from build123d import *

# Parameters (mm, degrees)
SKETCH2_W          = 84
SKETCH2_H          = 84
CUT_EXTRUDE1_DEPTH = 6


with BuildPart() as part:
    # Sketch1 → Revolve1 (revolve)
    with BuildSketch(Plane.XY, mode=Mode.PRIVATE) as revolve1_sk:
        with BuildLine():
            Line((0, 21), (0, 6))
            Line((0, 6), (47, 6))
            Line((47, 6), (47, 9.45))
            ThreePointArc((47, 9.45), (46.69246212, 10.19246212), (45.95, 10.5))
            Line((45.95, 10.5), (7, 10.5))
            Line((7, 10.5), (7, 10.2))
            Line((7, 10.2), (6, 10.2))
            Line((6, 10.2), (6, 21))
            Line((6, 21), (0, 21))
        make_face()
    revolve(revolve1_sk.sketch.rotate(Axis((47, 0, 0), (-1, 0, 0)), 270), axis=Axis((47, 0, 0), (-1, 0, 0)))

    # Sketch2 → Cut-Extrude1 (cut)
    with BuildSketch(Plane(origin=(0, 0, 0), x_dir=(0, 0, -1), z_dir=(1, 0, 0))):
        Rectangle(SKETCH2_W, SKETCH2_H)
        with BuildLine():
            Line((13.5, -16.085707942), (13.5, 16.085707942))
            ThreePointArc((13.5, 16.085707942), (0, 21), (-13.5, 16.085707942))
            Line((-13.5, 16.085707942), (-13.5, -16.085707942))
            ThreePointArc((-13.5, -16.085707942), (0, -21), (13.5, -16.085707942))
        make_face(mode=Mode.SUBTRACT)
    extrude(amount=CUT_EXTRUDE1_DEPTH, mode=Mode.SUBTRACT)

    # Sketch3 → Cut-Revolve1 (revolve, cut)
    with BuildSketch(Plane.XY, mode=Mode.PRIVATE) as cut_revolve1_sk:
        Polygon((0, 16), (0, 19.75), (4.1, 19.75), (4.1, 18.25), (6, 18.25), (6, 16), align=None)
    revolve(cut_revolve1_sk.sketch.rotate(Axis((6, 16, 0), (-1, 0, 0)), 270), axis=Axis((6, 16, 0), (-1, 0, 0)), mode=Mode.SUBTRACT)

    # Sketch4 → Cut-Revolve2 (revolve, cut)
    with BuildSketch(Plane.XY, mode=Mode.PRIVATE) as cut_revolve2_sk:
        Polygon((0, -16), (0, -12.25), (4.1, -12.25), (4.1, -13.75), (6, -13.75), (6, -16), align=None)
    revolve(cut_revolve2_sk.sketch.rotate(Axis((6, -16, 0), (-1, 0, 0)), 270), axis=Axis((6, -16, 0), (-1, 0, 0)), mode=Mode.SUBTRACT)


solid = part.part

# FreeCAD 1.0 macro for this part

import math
import FreeCAD as App
import Part
import Sketcher
Q = App.Units.Quantity


def add_polygon(sketch, points):
    """Adds a closed chain of lines whose ends are joined by coincident constraints."""
    first, n = sketch.GeometryCount, len(points)
    for a, b in zip(points, points[1:] + points[:1]):
        sketch.addGeometry(Part.LineSegment(App.Vector(*a, 0), App.Vector(*b, 0)), False)
    for i in range(n):
        sketch.addConstraint(Sketcher.Constraint("Coincident", first + i, 2, first + (i + 1) % n, 1))

doc = App.newDocument("Part")
params = doc.addObject("Spreadsheet::Sheet", "Params")
for row, (alias, value) in enumerate([
    ("sketch1_width", "47 mm"),
    ("sketch1_width2", "1 mm"),
    ("sketch1_width3", "6 mm"),
    ("sketch1_height", "15 mm"),
    ("sketch1_radius", "1.05 mm"),
    ("revolution_angle", "360 deg"),
    ("sketch2_radius", "21 mm"),
    ("sketch2_width", "84 mm"),
    ("pocket1_length", "6 mm"),
    ("sketch3_width", "6 mm"),
    ("sketch3_width2", "1.9 mm"),
    ("sketch3_height", "1.5 mm"),
    ("sketch3_height2", "3.75 mm"),
    ("groove_angle", "360 deg"),
    ("sketch4_width", "6 mm"),
    ("sketch4_width2", "1.9 mm"),
    ("sketch4_height", "1.5 mm"),
    ("sketch4_height2", "3.75 mm"),
    ("groove2_angle", "360 deg"),
], start=1):
    params.set(f"A{row}", alias)
    params.set(f"B{row}", "=" + value)
    params.setAlias(f"B{row}", alias)

body = doc.addObject("PartDesign::Body", "Body")

# Sketch on XY plane
sketch1 = doc.addObject("Sketcher::SketchObject", "Sketch")
body.addObject(sketch1)
sketch1.AttachmentSupport = (doc.XY_Plane, [""])
sketch1.MapMode = "FlatFace"
sketch1.addGeometry([
    Part.LineSegment(App.Vector(0, 21, 0), App.Vector(0, 6, 0)),  # 0
    Part.LineSegment(App.Vector(0, 6, 0), App.Vector(47, 6, 0)),  # 1
    Part.LineSegment(App.Vector(47, 6, 0), App.Vector(47, 9.45, 0)),  # 2
    Part.ArcOfCircle(Part.Circle(App.Vector(45.95, 9.45, 0), App.Vector(0, 0, 1), 1.05), math.radians(0), math.radians(90)),  # 3
    Part.LineSegment(App.Vector(45.95, 10.5, 0), App.Vector(7, 10.5, 0)),  # 4
    Part.LineSegment(App.Vector(7, 10.5, 0), App.Vector(7, 10.2, 0)),  # 5
    Part.LineSegment(App.Vector(7, 10.2, 0), App.Vector(6, 10.2, 0)),  # 6
    Part.LineSegment(App.Vector(6, 10.2, 0), App.Vector(6, 21, 0)),  # 7
    Part.LineSegment(App.Vector(6, 21, 0), App.Vector(0, 21, 0)),  # 8
], False)
sketch1.addConstraint([
    Sketcher.Constraint("Coincident", 0, 2, 1, 1),
    Sketcher.Constraint("Coincident", 1, 2, 2, 1),
    Sketcher.Constraint("Tangent", 2, 2, 3, 1),
    Sketcher.Constraint("Tangent", 3, 2, 4, 1),
    Sketcher.Constraint("Coincident", 4, 2, 5, 1),
    Sketcher.Constraint("Coincident", 5, 2, 6, 1),
    Sketcher.Constraint("Coincident", 6, 2, 7, 1),
    Sketcher.Constraint("Coincident", 7, 2, 8, 1),
    Sketcher.Constraint("Coincident", 8, 2, 0, 1),
    Sketcher.Constraint("Vertical", 0),
    Sketcher.Constraint("Horizontal", 1),
    Sketcher.Constraint("Vertical", 2),
    Sketcher.Constraint("Horizontal", 4),
    Sketcher.Constraint("Vertical", 5),
    Sketcher.Constraint("Horizontal", 6),
    Sketcher.Constraint("Vertical", 7),
    Sketcher.Constraint("Horizontal", 8),
    Sketcher.Constraint("PointOnObject", 0, 2, -2),
    Sketcher.Constraint("DistanceX", 1, 1, 1, 2, Q("47 mm")),
    Sketcher.Constraint("DistanceX", 6, 2, 6, 1, Q("1 mm")),
    Sketcher.Constraint("DistanceX", 8, 2, 8, 1, Q("6 mm")),
    Sketcher.Constraint("DistanceY", 0, 2, 0, 1, Q("15 mm")),
    Sketcher.Constraint("Radius", 3, Q("1.05 mm")),
    Sketcher.Constraint("DistanceY", 5, 2, 5, 1, Q("0.3 mm")),
    Sketcher.Constraint("DistanceY", 7, 1, 7, 2, Q("10.8 mm")),
    Sketcher.Constraint("DistanceY", -1, 1, 0, 2, Q("6 mm")),
])
sketch1.setExpression("Constraints[18]", "Params.sketch1_width")
sketch1.setExpression("Constraints[19]", "Params.sketch1_width2")
sketch1.setExpression("Constraints[20]", "Params.sketch1_width3")
sketch1.setExpression("Constraints[21]", "Params.sketch1_height")
sketch1.setExpression("Constraints[22]", "Params.sketch1_radius")
revolution = doc.addObject("PartDesign::Revolution", "Revolution")
body.addObject(revolution)
revolution.Profile = sketch1
revolution.ReferenceAxis = (sketch1, ["H_Axis"])
revolution.setExpression("Angle", "Params.revolution_angle")

# Sketch on YZ plane
sketch2 = doc.addObject("Sketcher::SketchObject", "Sketch001")
body.addObject(sketch2)
sketch2.AttachmentSupport = (doc.YZ_Plane, [""])
sketch2.MapMode = "FlatFace"
add_polygon(sketch2, [(42, 42), (-42, 42), (-42, -42), (42, -42)])  # lines 0-3
sketch2.addGeometry(Part.LineSegment(App.Vector(16, -14, 0), App.Vector(-16, -14, 0)), False)  # 4
sketch2.addGeometry(Part.ArcOfCircle(Part.Circle(App.Vector(0, 0, 0), App.Vector(0, 0, 1), 21), math.radians(140), math.radians(220)), False)  # 5
sketch2.addGeometry(Part.LineSegment(App.Vector(-16, 14, 0), App.Vector(16, 14, 0)), False)  # 6
sketch2.addGeometry(Part.ArcOfCircle(Part.Circle(App.Vector(0, 0, 0), App.Vector(0, 0, 1), 21), math.radians(-40), math.radians(40)), False)  # 7
sketch2.addConstraint([
    Sketcher.Constraint("Coincident", 4, 2, 5, 2),
    Sketcher.Constraint("Coincident", 5, 1, 6, 1),
    Sketcher.Constraint("Coincident", 6, 2, 7, 2),
    Sketcher.Constraint("Coincident", 7, 1, 4, 1),
    Sketcher.Constraint("Horizontal", 0),
    Sketcher.Constraint("Vertical", 1),
    Sketcher.Constraint("Horizontal", 2),
    Sketcher.Constraint("Vertical", 3),
    Sketcher.Constraint("Horizontal", 4),
    Sketcher.Constraint("Horizontal", 6),
    Sketcher.Constraint("Coincident", 5, 3, -1, 1),
    Sketcher.Constraint("Coincident", 7, 3, -1, 1),
    Sketcher.Constraint("Equal", 5, 7),
    Sketcher.Constraint("Symmetric", 0, 2, 2, 2, -1, 1),
    Sketcher.Constraint("Vertical", 4, 2, 5, 1),
    Sketcher.Constraint("Equal", 2, 1),
    Sketcher.Constraint("Radius", 5, Q("21 mm")),
    Sketcher.Constraint("DistanceX", 0, 2, 0, 1, Q("84 mm")),
    Sketcher.Constraint("DistanceY", 4, 2, 5, 1, Q("27 mm")),
])
sketch2.setExpression("Constraints[20]", "Params.sketch2_radius")
sketch2.setExpression("Constraints[21]", "Params.sketch2_width")
pocket1 = doc.addObject("PartDesign::Pocket", "Pocket")
body.addObject(pocket1)
pocket1.Profile = sketch2
pocket1.setExpression("Length", "Params.pocket1_length")
pocket1.Reversed = True

# Sketch on XY plane
sketch3 = doc.addObject("Sketcher::SketchObject", "Sketch002")
body.addObject(sketch3)
sketch3.AttachmentSupport = (doc.XY_Plane, [""])
sketch3.MapMode = "FlatFace"
add_polygon(sketch3, [(0, 19.8), (0, 16), (6, 16), (6, 18.2), (4.1, 18.2), (4.1, 19.8)])  # lines 0-5
sketch3.addGeometry(Part.LineSegment(App.Vector(6, 16, 0), App.Vector(0, 16, 0)), True)  # axis
sketch3.addConstraint([
    Sketcher.Constraint("Vertical", 0),
    Sketcher.Constraint("Horizontal", 1),
    Sketcher.Constraint("Vertical", 2),
    Sketcher.Constraint("Horizontal", 3),
    Sketcher.Constraint("Vertical", 4),
    Sketcher.Constraint("Horizontal", 5),
    Sketcher.Constraint("Horizontal", 6),
    Sketcher.Constraint("Coincident", 6, 1, 1, 2),
    Sketcher.Constraint("PointOnObject", 0, 2, -2),
    Sketcher.Constraint("PointOnObject", 6, 2, -2),
    Sketcher.Constraint("DistanceX", 1, 1, 1, 2, Q("6 mm")),
    Sketcher.Constraint("DistanceX", 3, 2, 3, 1, Q("1.9 mm")),
    Sketcher.Constraint("DistanceY", 4, 1, 4, 2, Q("1.5 mm")),
    Sketcher.Constraint("DistanceY", -1, 1, 0, 2, Q("16 mm")),
    Sketcher.Constraint("DistanceY", 0, 2, 0, 1, Q("3.75 mm")),
])
sketch3.setExpression("Constraints[16]", "Params.sketch3_width")
sketch3.setExpression("Constraints[17]", "Params.sketch3_width2")
sketch3.setExpression("Constraints[18]", "Params.sketch3_height")
sketch3.setExpression("Constraints[20]", "Params.sketch3_height2")
groove = doc.addObject("PartDesign::Groove", "Groove")
body.addObject(groove)
groove.Profile = sketch3
groove.ReferenceAxis = (sketch3, ["Axis0"])
groove.setExpression("Angle", "Params.groove_angle")

# Sketch on XY plane
sketch4 = doc.addObject("Sketcher::SketchObject", "Sketch003")
body.addObject(sketch4)
sketch4.AttachmentSupport = (doc.XY_Plane, [""])
sketch4.MapMode = "FlatFace"
add_polygon(sketch4, [(0, -12.2), (0, -16), (6, -16), (6, -13.8), (4.1, -13.8), (4.1, -12.2)])  # lines 0-5
sketch4.addGeometry(Part.LineSegment(App.Vector(6, -16, 0), App.Vector(0, -16, 0)), True)  # axis
sketch4.addConstraint([
    Sketcher.Constraint("Vertical", 0),
    Sketcher.Constraint("Horizontal", 1),
    Sketcher.Constraint("Vertical", 2),
    Sketcher.Constraint("Horizontal", 3),
    Sketcher.Constraint("Vertical", 4),
    Sketcher.Constraint("Horizontal", 5),
    Sketcher.Constraint("Horizontal", 6),
    Sketcher.Constraint("Coincident", 6, 1, 1, 2),
    Sketcher.Constraint("PointOnObject", 0, 2, -2),
    Sketcher.Constraint("PointOnObject", 6, 2, -2),
    Sketcher.Constraint("DistanceX", 1, 1, 1, 2, Q("6 mm")),
    Sketcher.Constraint("DistanceX", 3, 2, 3, 1, Q("1.9 mm")),
    Sketcher.Constraint("DistanceY", 4, 1, 4, 2, Q("1.5 mm")),
    Sketcher.Constraint("DistanceY", 0, 2, -1, 1, Q("16 mm")),
    Sketcher.Constraint("DistanceY", 0, 2, 0, 1, Q("3.75 mm")),
])
sketch4.setExpression("Constraints[16]", "Params.sketch4_width")
sketch4.setExpression("Constraints[17]", "Params.sketch4_width2")
sketch4.setExpression("Constraints[18]", "Params.sketch4_height")
sketch4.setExpression("Constraints[20]", "Params.sketch4_height2")
groove2 = doc.addObject("PartDesign::Groove", "Groove001")
body.addObject(groove2)
groove2.Profile = sketch4
groove2.ReferenceAxis = (sketch4, ["Axis0"])
groove2.setExpression("Angle", "Params.groove2_angle")

doc.recompute()
